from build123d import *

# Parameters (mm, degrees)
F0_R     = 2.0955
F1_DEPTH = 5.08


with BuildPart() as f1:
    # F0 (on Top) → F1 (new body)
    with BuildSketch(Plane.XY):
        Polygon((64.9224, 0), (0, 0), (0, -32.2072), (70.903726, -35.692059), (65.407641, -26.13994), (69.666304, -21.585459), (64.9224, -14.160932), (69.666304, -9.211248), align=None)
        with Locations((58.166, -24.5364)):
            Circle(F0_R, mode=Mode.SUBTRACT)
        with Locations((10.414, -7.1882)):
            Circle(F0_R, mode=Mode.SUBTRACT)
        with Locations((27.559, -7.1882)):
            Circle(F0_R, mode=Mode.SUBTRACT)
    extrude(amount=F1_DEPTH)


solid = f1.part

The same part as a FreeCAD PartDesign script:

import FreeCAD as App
import Part
import Sketcher
from FreeCAD import Vector
Q = App.Units.Quantity

doc = App.newDocument("Part")
body = doc.addObject("PartDesign::Body", "Body")

sketch1 = body.newObject("Sketcher::SketchObject", "Sketch")
sketch1.AttachmentSupport = (doc.getObject("XY_Plane"), [""])
sketch1.MapMode = "FlatFace"
sketch1.addGeometry([
    Part.LineSegment(Vector(64.9, 0, 0), Vector(0, 0, 0)),
    Part.LineSegment(Vector(0, 0, 0), Vector(0, -32.2, 0)),
    Part.LineSegment(Vector(0, -32.2, 0), Vector(70.9, -35.7, 0)),
    Part.LineSegment(Vector(70.9, -35.7, 0), Vector(65.4, -26.1, 0)),
    Part.LineSegment(Vector(65.4, -26.1, 0), Vector(69.7, -21.6, 0)),
    Part.LineSegment(Vector(69.7, -21.6, 0), Vector(64.9, -14.2, 0)),
    Part.LineSegment(Vector(64.9, -14.2, 0), Vector(69.7, -9.2, 0)),
    Part.LineSegment(Vector(69.7, -9.2, 0), Vector(64.9, 0, 0)),
    Part.Circle(Vector(58.2, -24.5, 0), Vector(0, 0, 1), 2.1),
    Part.Circle(Vector(10.4, -7.2, 0), Vector(0, 0, 1), 2.1),
    Part.Circle(Vector(27.6, -7.2, 0), Vector(0, 0, 1), 2.1),
], False)
sketch1.addConstraint([
    Sketcher.Constraint("Coincident", 0, 2, 1, 1),
    Sketcher.Constraint("Coincident", 1, 2, 2, 1),
    Sketcher.Constraint("Coincident", 2, 2, 3, 1),
    Sketcher.Constraint("Coincident", 3, 2, 4, 1),
    Sketcher.Constraint("Coincident", 4, 2, 5, 1),
    Sketcher.Constraint("Coincident", 5, 2, 6, 1),
    Sketcher.Constraint("Coincident", 6, 2, 7, 1),
    Sketcher.Constraint("Coincident", 7, 2, 0, 1),
    Sketcher.Constraint("Horizontal", 0),
    Sketcher.Constraint("Vertical", 1),
    Sketcher.Constraint("Coincident", 0, 2, -1, 1),
    Sketcher.Constraint("Equal", 8, 9),
    Sketcher.Constraint("Equal", 9, 10),
    Sketcher.Constraint("Horizontal", 9, 3, 10, 3),
    Sketcher.Constraint("Vertical", 4, 2, 6, 2),
    Sketcher.Constraint("Vertical", 5, 2, 7, 2),
    Sketcher.Constraint("Diameter", 8, Q("0.165 in")),
    Sketcher.Constraint("DistanceX", 0, 2, 0, 1, Q("2.556 in")),
    Sketcher.Constraint("DistanceY", 1, 2, 1, 1, Q("1.268 in")),
    Sketcher.Constraint("DistanceX", -1, 1, 8, 3, Q("2.29 in")),
    Sketcher.Constraint("DistanceX", -1, 1, 9, 3, Q("0.41 in")),
    Sketcher.Constraint("DistanceY", 8, 3, -1, 1, Q("0.966 in")),
    Sketcher.Constraint("DistanceY", 9, 3, -1, 1, Q("0.283 in")),
    Sketcher.Constraint("DistanceX", -1, 1, 10, 3, Q("1.085 in")),
    Sketcher.Constraint("DistanceY", 2, 2, 4, 2, Q("14.1066 mm")),
    Sketcher.Constraint("Distance", 5, Q("8.810688 mm")),
    Sketcher.Constraint("DistanceY", 2, 2, -1, 1, Q("35.692059 mm")),
    Sketcher.Constraint("DistanceX", -1, 1, 3, 2, Q("65.407641 mm")),
    Sketcher.Constraint("DistanceY", 3, 2, -1, 1, Q("26.13994 mm")),
    Sketcher.Constraint("DistanceY", 4, 2, 6, 2, Q("12.374211 mm")),
    Sketcher.Constraint("Distance", 2, Q("70.989313 mm")),
    Sketcher.Constraint("Distance", 4, Q("6.235343 mm")),
])
pad1 = body.newObject("PartDesign::Pad", "Pad")
pad1.Profile = sketch1
pad1.Length = Q("0.2 in")

doc.recompute()
